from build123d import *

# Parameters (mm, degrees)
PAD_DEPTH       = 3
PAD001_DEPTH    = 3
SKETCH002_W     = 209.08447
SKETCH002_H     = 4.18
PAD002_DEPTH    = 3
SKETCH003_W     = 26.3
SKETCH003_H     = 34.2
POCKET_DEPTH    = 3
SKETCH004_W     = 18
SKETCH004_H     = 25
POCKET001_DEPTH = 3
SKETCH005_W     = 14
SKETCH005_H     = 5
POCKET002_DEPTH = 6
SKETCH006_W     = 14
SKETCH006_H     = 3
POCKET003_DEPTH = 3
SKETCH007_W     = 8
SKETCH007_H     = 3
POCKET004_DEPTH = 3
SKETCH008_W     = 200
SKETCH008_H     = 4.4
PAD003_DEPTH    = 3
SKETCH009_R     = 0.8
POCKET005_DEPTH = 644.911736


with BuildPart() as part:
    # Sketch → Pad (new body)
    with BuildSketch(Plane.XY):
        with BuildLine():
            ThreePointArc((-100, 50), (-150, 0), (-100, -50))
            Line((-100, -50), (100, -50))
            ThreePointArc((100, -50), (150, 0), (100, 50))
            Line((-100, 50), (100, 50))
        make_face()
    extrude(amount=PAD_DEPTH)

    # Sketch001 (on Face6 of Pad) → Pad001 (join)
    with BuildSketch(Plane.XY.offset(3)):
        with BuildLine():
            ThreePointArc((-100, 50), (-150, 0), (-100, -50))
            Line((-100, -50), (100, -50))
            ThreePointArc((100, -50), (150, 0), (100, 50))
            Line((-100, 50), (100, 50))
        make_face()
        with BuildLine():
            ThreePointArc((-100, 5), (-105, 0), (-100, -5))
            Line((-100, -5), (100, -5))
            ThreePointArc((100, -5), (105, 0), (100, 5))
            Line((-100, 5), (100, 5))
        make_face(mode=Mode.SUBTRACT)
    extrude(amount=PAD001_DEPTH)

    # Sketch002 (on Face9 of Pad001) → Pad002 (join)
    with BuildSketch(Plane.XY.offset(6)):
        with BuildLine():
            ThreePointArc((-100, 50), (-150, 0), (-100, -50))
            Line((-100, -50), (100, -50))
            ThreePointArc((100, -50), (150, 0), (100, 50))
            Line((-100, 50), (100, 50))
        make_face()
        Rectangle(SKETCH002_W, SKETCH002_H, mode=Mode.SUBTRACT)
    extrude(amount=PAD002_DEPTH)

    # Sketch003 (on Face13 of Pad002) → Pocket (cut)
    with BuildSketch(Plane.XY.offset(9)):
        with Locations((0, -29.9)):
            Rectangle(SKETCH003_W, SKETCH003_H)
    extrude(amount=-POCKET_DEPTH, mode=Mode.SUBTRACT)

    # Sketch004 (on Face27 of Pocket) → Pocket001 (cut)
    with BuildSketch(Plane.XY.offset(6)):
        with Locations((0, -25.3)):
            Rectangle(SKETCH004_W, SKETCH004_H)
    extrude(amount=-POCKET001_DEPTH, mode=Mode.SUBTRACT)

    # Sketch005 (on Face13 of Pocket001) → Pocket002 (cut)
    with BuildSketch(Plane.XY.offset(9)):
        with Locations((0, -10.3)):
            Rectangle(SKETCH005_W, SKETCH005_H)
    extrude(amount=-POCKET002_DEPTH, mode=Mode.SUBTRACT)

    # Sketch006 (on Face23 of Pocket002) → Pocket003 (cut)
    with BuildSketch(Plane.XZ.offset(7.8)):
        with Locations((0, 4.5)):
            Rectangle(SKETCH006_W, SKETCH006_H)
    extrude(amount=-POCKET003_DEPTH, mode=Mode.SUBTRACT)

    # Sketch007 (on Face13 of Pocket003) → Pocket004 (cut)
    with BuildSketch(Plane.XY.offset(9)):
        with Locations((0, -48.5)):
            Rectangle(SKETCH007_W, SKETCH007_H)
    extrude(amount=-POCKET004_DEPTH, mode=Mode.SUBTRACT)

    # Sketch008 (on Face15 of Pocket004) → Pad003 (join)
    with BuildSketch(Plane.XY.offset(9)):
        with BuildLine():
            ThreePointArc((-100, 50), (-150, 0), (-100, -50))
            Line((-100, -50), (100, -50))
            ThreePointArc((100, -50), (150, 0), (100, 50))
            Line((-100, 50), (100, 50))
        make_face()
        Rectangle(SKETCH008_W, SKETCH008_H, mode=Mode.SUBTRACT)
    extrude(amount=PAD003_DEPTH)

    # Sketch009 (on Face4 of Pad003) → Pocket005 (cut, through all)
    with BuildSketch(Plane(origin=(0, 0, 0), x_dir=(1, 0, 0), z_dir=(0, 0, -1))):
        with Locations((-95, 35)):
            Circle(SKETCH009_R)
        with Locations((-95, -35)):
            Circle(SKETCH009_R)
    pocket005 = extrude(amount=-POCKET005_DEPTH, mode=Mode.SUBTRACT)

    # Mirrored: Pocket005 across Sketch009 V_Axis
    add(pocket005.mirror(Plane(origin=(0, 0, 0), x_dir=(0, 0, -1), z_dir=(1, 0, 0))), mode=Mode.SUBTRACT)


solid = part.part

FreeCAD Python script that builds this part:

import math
import FreeCAD as App
import Part
import Sketcher
from FreeCAD import Vector
Q = App.Units.Quantity


def add_polygon(sketch, points):
    """Adds a closed chain of lines whose ends are joined by coincident constraints."""
    first, n = sketch.GeometryCount, len(points)
    for a, b in zip(points, points[1:] + points[:1]):
        sketch.addGeometry(Part.LineSegment(App.Vector(*a, 0), App.Vector(*b, 0)), False)
    for i in range(n):
        sketch.addConstraint(Sketcher.Constraint("Coincident", first + i, 2, first + (i + 1) % n, 1))

doc = App.newDocument("Part")
body = doc.addObject("PartDesign::Body", "Body")

sketch1 = doc.addObject("Sketcher::SketchObject", "Sketch")
body.addObject(sketch1)
sketch1.AttachmentSupport = (doc.XY_Plane, [""])
sketch1.MapMode = "FlatFace"
sketch1.addGeometry(Part.ArcOfCircle(Part.Circle(Vector(-100, 0, 0), Vector(0, 0, 1), 50), math.radians(90), math.radians(270)), False)
sketch1.addGeometry(Part.LineSegment(Vector(-100, -50, 0), Vector(100, -50, 0)), False)
sketch1.addGeometry(Part.ArcOfCircle(Part.Circle(Vector(100, 0, 0), Vector(0, 0, 1), 50), math.radians(-90), math.radians(90)), False)
sketch1.addGeometry(Part.LineSegment(Vector(100, 50, 0), Vector(-100, 50, 0)), False)
sketch1.addConstraint(Sketcher.Constraint("Tangent", 0, 2, 1, 1))
sketch1.addConstraint(Sketcher.Constraint("Tangent", 1, 2, 2, 1))
sketch1.addConstraint(Sketcher.Constraint("Tangent", 2, 2, 3, 1))
sketch1.addConstraint(Sketcher.Constraint("Tangent", 3, 2, 0, 1))
sketch1.addConstraint(Sketcher.Constraint("Horizontal", 1))
sketch1.addConstraint(Sketcher.Constraint("Horizontal", 3))
sketch1.addConstraint(Sketcher.Constraint("Symmetric", 0, 3, 2, 3, -1, 1))
sketch1.addConstraint(Sketcher.Constraint("Radius", 0, Q("50 mm")))
sketch1.addConstraint(Sketcher.Constraint("DistanceX", 1, 1, 1, 2, Q("200 mm")))
pad1 = doc.addObject("PartDesign::Pad", "Pad")
body.addObject(pad1)
pad1.Profile = sketch1
pad1.Length = 3

sketch2 = doc.addObject("Sketcher::SketchObject", "Sketch001")
body.addObject(sketch2)
sketch2.AttachmentSupport = (doc.XY_Plane, [""])
sketch2.MapMode = "FlatFace"
sketch2.AttachmentOffset = App.Placement(Vector(0, 0, 3), App.Rotation())
sketch2.addGeometry(Part.ArcOfCircle(Part.Circle(Vector(-100, 0, 0), Vector(0, 0, 1), 50), math.radians(90), math.radians(270)), False)
sketch2.addGeometry(Part.LineSegment(Vector(-100, -50, 0), Vector(100, -50, 0)), False)
sketch2.addGeometry(Part.ArcOfCircle(Part.Circle(Vector(100, 0, 0), Vector(0, 0, 1), 50), math.radians(-90), math.radians(90)), False)
sketch2.addGeometry(Part.LineSegment(Vector(100, 50, 0), Vector(-100, 50, 0)), False)
sketch2.addGeometry(Part.ArcOfCircle(Part.Circle(Vector(-100, 0, 0), Vector(0, 0, 1), 5), math.radians(90), math.radians(270)), False)
sketch2.addGeometry(Part.LineSegment(Vector(-100, 5, 0), Vector(100, 5, 0)), False)
sketch2.addGeometry(Part.ArcOfCircle(Part.Circle(Vector(100, 0, 0), Vector(0, 0, 1), 5), math.radians(-90), math.radians(90)), False)
sketch2.addGeometry(Part.LineSegment(Vector(100, -5, 0), Vector(-100, -5, 0)), False)
sketch2.addConstraint(Sketcher.Constraint("Tangent", 0, 2, 1, 1))
sketch2.addConstraint(Sketcher.Constraint("Tangent", 1, 2, 2, 1))
sketch2.addConstraint(Sketcher.Constraint("Tangent", 2, 2, 3, 1))
sketch2.addConstraint(Sketcher.Constraint("Tangent", 3, 2, 0, 1))
sketch2.addConstraint(Sketcher.Constraint("Tangent", 4, 1, 5, 1))
sketch2.addConstraint(Sketcher.Constraint("Tangent", 5, 2, 6, 2))
sketch2.addConstraint(Sketcher.Constraint("Tangent", 6, 1, 7, 1))
sketch2.addConstraint(Sketcher.Constraint("Tangent", 7, 2, 4, 2))
sketch2.addConstraint(Sketcher.Constraint("Horizontal", 1))
sketch2.addConstraint(Sketcher.Constraint("Horizontal", 3))
sketch2.addConstraint(Sketcher.Constraint("Horizontal", 5))
sketch2.addConstraint(Sketcher.Constraint("Horizontal", 7))
sketch2.addConstraint(Sketcher.Constraint("Coincident", 4, 3, 0, 3))
sketch2.addConstraint(Sketcher.Constraint("Symmetric", 0, 3, 2, 3, -1, 1))
sketch2.addConstraint(Sketcher.Constraint("Vertical", 6, 3, 1, 2))
sketch2.addConstraint(Sketcher.Constraint("Radius", 0, Q("50 mm")))
sketch2.addConstraint(Sketcher.Constraint("Radius", 4, Q("5 mm")))
sketch2.addConstraint(Sketcher.Constraint("DistanceX", 1, 1, 1, 2, Q("200 mm")))
pad2 = doc.addObject("PartDesign::Pad", "Pad001")
body.addObject(pad2)
pad2.Profile = sketch2
pad2.Length = 3

sketch3 = doc.addObject("Sketcher::SketchObject", "Sketch002")
body.addObject(sketch3)
sketch3.AttachmentSupport = (doc.XY_Plane, [""])
sketch3.MapMode = "FlatFace"
sketch3.AttachmentOffset = App.Placement(Vector(0, 0, 6), App.Rotation())
sketch3.addGeometry(Part.ArcOfCircle(Part.Circle(Vector(-100, 0, 0), Vector(0, 0, 1), 50), math.radians(90), math.radians(270)), False)
sketch3.addGeometry(Part.LineSegment(Vector(-100, -50, 0), Vector(100, -50, 0)), False)
sketch3.addGeometry(Part.ArcOfCircle(Part.Circle(Vector(100, 0, 0), Vector(0, 0, 1), 50), math.radians(-90), math.radians(90)), False)
sketch3.addGeometry(Part.LineSegment(Vector(100, 50, 0), Vector(-100, 50, 0)), False)
add_polygon(sketch3, [(104.542235, -2.09), (-104.542235, -2.09), (-104.542235, 2.09), (104.542235, 2.09)])
sketch3.addConstraint(Sketcher.Constraint("Tangent", 0, 2, 1, 1))
sketch3.addConstraint(Sketcher.Constraint("Tangent", 1, 2, 2, 1))
sketch3.addConstraint(Sketcher.Constraint("Tangent", 2, 2, 3, 1))
sketch3.addConstraint(Sketcher.Constraint("Tangent", 3, 2, 0, 1))
sketch3.addConstraint(Sketcher.Constraint("Horizontal", 1))
sketch3.addConstraint(Sketcher.Constraint("Horizontal", 3))
sketch3.addConstraint(Sketcher.Constraint("Horizontal", 4))
sketch3.addConstraint(Sketcher.Constraint("Vertical", 5))
sketch3.addConstraint(Sketcher.Constraint("Horizontal", 6))
sketch3.addConstraint(Sketcher.Constraint("Vertical", 7))
sketch3.addConstraint(Sketcher.Constraint("Symmetric", 0, 3, 2, 3, -1, 1))
sketch3.addConstraint(Sketcher.Constraint("Symmetric", 4, 2, 6, 2, -1, 1))
sketch3.addConstraint(Sketcher.Constraint("Radius", 0, Q("50 mm")))
sketch3.addConstraint(Sketcher.Constraint("DistanceX", 1, 1, 1, 2, Q("200 mm")))
sketch3.addConstraint(Sketcher.Constraint("DistanceY", 5, 1, 5, 2, Q("4.18 mm")))
sketch3.addConstraint(Sketcher.Constraint("DistanceX", 4, 2, 4, 1, Q("209.08447 mm")))
pad3 = doc.addObject("PartDesign::Pad", "Pad002")
body.addObject(pad3)
pad3.Profile = sketch3
pad3.Length = 3

sketch4 = doc.addObject("Sketcher::SketchObject", "Sketch003")
body.addObject(sketch4)
sketch4.AttachmentSupport = (doc.XY_Plane, [""])
sketch4.MapMode = "FlatFace"
sketch4.AttachmentOffset = App.Placement(Vector(0, 0, 9), App.Rotation())
add_polygon(sketch4, [(-13.15, -12.8), (-13.15, -47), (13.15, -47), (13.15, -12.8)])
sketch4.addConstraint(Sketcher.Constraint("Vertical", 0))
sketch4.addConstraint(Sketcher.Constraint("Horizontal", 1))
sketch4.addConstraint(Sketcher.Constraint("Vertical", 2))
sketch4.addConstraint(Sketcher.Constraint("Horizontal", 3))
sketch4.addConstraint(Sketcher.Constraint("DistanceX", 1, 1, 1, 2, Q("26.3 mm")))
sketch4.addConstraint(Sketcher.Constraint("DistanceY", 0, 2, 0, 1, Q("34.2 mm")))
sketch4.addConstraint(Sketcher.Constraint("DistanceY", 0, 2, -1, 1, Q("47 mm")))
sketch4.addConstraint(Sketcher.Constraint("DistanceX", 0, 2, -1, 1, Q("13.15 mm")))
pocket1 = doc.addObject("PartDesign::Pocket", "Pocket")
body.addObject(pocket1)
pocket1.Profile = sketch4
pocket1.Length = 3

sketch5 = doc.addObject("Sketcher::SketchObject", "Sketch004")
body.addObject(sketch5)
sketch5.AttachmentSupport = (doc.XY_Plane, [""])
sketch5.MapMode = "FlatFace"
sketch5.AttachmentOffset = App.Placement(Vector(0, 0, 6), App.Rotation())
add_polygon(sketch5, [(-9, -12.8), (-9, -37.8), (9, -37.8), (9, -12.8)])
sketch5.addConstraint(Sketcher.Constraint("Vertical", 0))
sketch5.addConstraint(Sketcher.Constraint("Horizontal", 1))
sketch5.addConstraint(Sketcher.Constraint("Vertical", 2))
sketch5.addConstraint(Sketcher.Constraint("Horizontal", 3))
sketch5.addConstraint(Sketcher.Constraint("DistanceX", 1, 1, 1, 2, Q("18 mm")))
sketch5.addConstraint(Sketcher.Constraint("DistanceY", 0, 2, 0, 1, Q("25 mm")))
sketch5.addConstraint(Sketcher.Constraint("DistanceX", 0, 2, -1, 1, Q("9 mm")))
sketch5.addConstraint(Sketcher.Constraint("DistanceY", 0, 2, -1, 1, Q("37.8 mm")))
pocket2 = doc.addObject("PartDesign::Pocket", "Pocket001")
body.addObject(pocket2)
pocket2.Profile = sketch5
pocket2.Length = 3

sketch6 = doc.addObject("Sketcher::SketchObject", "Sketch005")
body.addObject(sketch6)
sketch6.AttachmentSupport = (doc.XY_Plane, [""])
sketch6.MapMode = "FlatFace"
sketch6.AttachmentOffset = App.Placement(Vector(0, 0, 9), App.Rotation())
add_polygon(sketch6, [(-7, -7.8), (-7, -12.8), (7, -12.8), (7, -7.8)])
sketch6.addConstraint(Sketcher.Constraint("Vertical", 0))
sketch6.addConstraint(Sketcher.Constraint("Horizontal", 1))
sketch6.addConstraint(Sketcher.Constraint("Vertical", 2))
sketch6.addConstraint(Sketcher.Constraint("Horizontal", 3))
sketch6.addConstraint(Sketcher.Constraint("DistanceX", 1, 1, 1, 2, Q("14 mm")))
sketch6.addConstraint(Sketcher.Constraint("DistanceY", 0, 2, 0, 1, Q("5 mm")))
sketch6.addConstraint(Sketcher.Constraint("DistanceX", 0, 2, -1, 1, Q("7 mm")))
sketch6.addConstraint(Sketcher.Constraint("DistanceY", 0, 2, -1, 1, Q("12.8 mm")))
pocket3 = doc.addObject("PartDesign::Pocket", "Pocket002")
body.addObject(pocket3)
pocket3.Profile = sketch6
pocket3.Length = 6

sketch7 = doc.addObject("Sketcher::SketchObject", "Sketch006")
body.addObject(sketch7)
sketch7.AttachmentSupport = (doc.XZ_Plane, [""])
sketch7.MapMode = "FlatFace"
sketch7.AttachmentOffset = App.Placement(Vector(0, 0, 7.8), App.Rotation())
add_polygon(sketch7, [(-7, 6), (-7, 3), (7, 3), (7, 6)])
sketch7.addConstraint(Sketcher.Constraint("Vertical", 0))
sketch7.addConstraint(Sketcher.Constraint("Horizontal", 1))
sketch7.addConstraint(Sketcher.Constraint("Vertical", 2))
sketch7.addConstraint(Sketcher.Constraint("Horizontal", 3))
sketch7.addConstraint(Sketcher.Constraint("DistanceX", 1, 1, 1, 2, Q("14 mm")))
sketch7.addConstraint(Sketcher.Constraint("DistanceY", 0, 2, 0, 1, Q("3 mm")))
sketch7.addConstraint(Sketcher.Constraint("DistanceX", 0, 2, -1, 1, Q("7 mm")))
sketch7.addConstraint(Sketcher.Constraint("DistanceY", -1, 1, 0, 2, Q("3 mm")))
pocket4 = doc.addObject("PartDesign::Pocket", "Pocket003")
body.addObject(pocket4)
pocket4.Profile = sketch7
pocket4.Length = 3

sketch8 = doc.addObject("Sketcher::SketchObject", "Sketch007")
body.addObject(sketch8)
sketch8.AttachmentSupport = (doc.XY_Plane, [""])
sketch8.MapMode = "FlatFace"
sketch8.AttachmentOffset = App.Placement(Vector(0, 0, 9), App.Rotation())
add_polygon(sketch8, [(-4, -47), (-4, -50), (4, -50), (4, -47)])
sketch8.addConstraint(Sketcher.Constraint("Vertical", 0))
sketch8.addConstraint(Sketcher.Constraint("Horizontal", 1))
sketch8.addConstraint(Sketcher.Constraint("Vertical", 2))
sketch8.addConstraint(Sketcher.Constraint("Horizontal", 3))
sketch8.addConstraint(Sketcher.Constraint("DistanceX", 1, 1, 1, 2, Q("8 mm")))
sketch8.addConstraint(Sketcher.Constraint("DistanceY", 0, 2, 0, 1, Q("3 mm")))
sketch8.addConstraint(Sketcher.Constraint("DistanceX", 0, 2, -1, 1, Q("4 mm")))
sketch8.addConstraint(Sketcher.Constraint("DistanceY", 0, 2, -1, 1, Q("50 mm")))
pocket5 = doc.addObject("PartDesign::Pocket", "Pocket004")
body.addObject(pocket5)
pocket5.Profile = sketch8
pocket5.Length = 3

sketch9 = doc.addObject("Sketcher::SketchObject", "Sketch008")
body.addObject(sketch9)
sketch9.AttachmentSupport = (doc.XY_Plane, [""])
sketch9.MapMode = "FlatFace"
sketch9.AttachmentOffset = App.Placement(Vector(0, 0, 9), App.Rotation())
sketch9.addGeometry(Part.ArcOfCircle(Part.Circle(Vector(-100, 0, 0), Vector(0, 0, 1), 50), math.radians(90), math.radians(270)), False)
sketch9.addGeometry(Part.LineSegment(Vector(-100, -50, 0), Vector(100, -50, 0)), False)
sketch9.addGeometry(Part.ArcOfCircle(Part.Circle(Vector(100, 0, 0), Vector(0, 0, 1), 50), math.radians(-90), math.radians(90)), False)
sketch9.addGeometry(Part.LineSegment(Vector(100, 50, 0), Vector(-100, 50, 0)), False)
add_polygon(sketch9, [(100, -2.2), (-100, -2.2), (-100, 2.2), (100, 2.2)])
sketch9.addConstraint(Sketcher.Constraint("Tangent", 0, 2, 1, 1))
sketch9.addConstraint(Sketcher.Constraint("Tangent", 1, 2, 2, 1))
sketch9.addConstraint(Sketcher.Constraint("Tangent", 2, 2, 3, 1))
sketch9.addConstraint(Sketcher.Constraint("Tangent", 3, 2, 0, 1))
sketch9.addConstraint(Sketcher.Constraint("Horizontal", 1))
sketch9.addConstraint(Sketcher.Constraint("Horizontal", 3))
sketch9.addConstraint(Sketcher.Constraint("Horizontal", 4))
sketch9.addConstraint(Sketcher.Constraint("Vertical", 5))
sketch9.addConstraint(Sketcher.Constraint("Horizontal", 6))
sketch9.addConstraint(Sketcher.Constraint("Vertical", 7))
sketch9.addConstraint(Sketcher.Constraint("Symmetric", 0, 3, 2, 3, -1, 1))
sketch9.addConstraint(Sketcher.Constraint("Symmetric", 4, 2, 6, 2, -1, 1))
sketch9.addConstraint(Sketcher.Constraint("Vertical", 3, 2, 4, 2))
sketch9.addConstraint(Sketcher.Constraint("Radius", 0, Q("50 mm")))
sketch9.addConstraint(Sketcher.Constraint("DistanceX", 1, 1, 1, 2, Q("200 mm")))
sketch9.addConstraint(Sketcher.Constraint("DistanceY", 5, 1, 5, 2, Q("4.4 mm")))
pad4 = doc.addObject("PartDesign::Pad", "Pad003")
body.addObject(pad4)
pad4.Profile = sketch9
pad4.Length = 3

sketch10 = doc.addObject("Sketcher::SketchObject", "Sketch009")
body.addObject(sketch10)
sketch10.AttachmentSupport = (doc.XY_Plane, [""])
sketch10.MapMode = "FlatFace"
sketch10.addGeometry(Part.Circle(Vector(-95, -35, 0), Vector(0, 0, 1), 0.8), False)
sketch10.addGeometry(Part.Circle(Vector(-95, 35, 0), Vector(0, 0, 1), 0.8), False)
sketch10.addConstraint(Sketcher.Constraint("Equal", 0, 1))
sketch10.addConstraint(Sketcher.Constraint("Symmetric", 0, 3, 1, 3, -1))
sketch10.addConstraint(Sketcher.Constraint("Diameter", 0, Q("1.6 mm")))
sketch10.addConstraint(Sketcher.Constraint("DistanceX", 0, 3, -1, 1, Q("95 mm")))
sketch10.addConstraint(Sketcher.Constraint("DistanceY", 0, 3, -1, 1, Q("35 mm")))
pocket6 = doc.addObject("PartDesign::Pocket", "Pocket005")
body.addObject(pocket6)
pocket6.Profile = sketch10
pocket6.Type = "ThroughAll"
pocket6.Reversed = True
doc.recompute()

mirrored = doc.addObject("PartDesign::Mirrored", "Mirrored")
body.addObject(mirrored)
mirrored.Originals = [pocket6]
mirrored.MirrorPlane = (doc.YZ_Plane, [""])
body.Tip = mirrored

doc.recompute()
